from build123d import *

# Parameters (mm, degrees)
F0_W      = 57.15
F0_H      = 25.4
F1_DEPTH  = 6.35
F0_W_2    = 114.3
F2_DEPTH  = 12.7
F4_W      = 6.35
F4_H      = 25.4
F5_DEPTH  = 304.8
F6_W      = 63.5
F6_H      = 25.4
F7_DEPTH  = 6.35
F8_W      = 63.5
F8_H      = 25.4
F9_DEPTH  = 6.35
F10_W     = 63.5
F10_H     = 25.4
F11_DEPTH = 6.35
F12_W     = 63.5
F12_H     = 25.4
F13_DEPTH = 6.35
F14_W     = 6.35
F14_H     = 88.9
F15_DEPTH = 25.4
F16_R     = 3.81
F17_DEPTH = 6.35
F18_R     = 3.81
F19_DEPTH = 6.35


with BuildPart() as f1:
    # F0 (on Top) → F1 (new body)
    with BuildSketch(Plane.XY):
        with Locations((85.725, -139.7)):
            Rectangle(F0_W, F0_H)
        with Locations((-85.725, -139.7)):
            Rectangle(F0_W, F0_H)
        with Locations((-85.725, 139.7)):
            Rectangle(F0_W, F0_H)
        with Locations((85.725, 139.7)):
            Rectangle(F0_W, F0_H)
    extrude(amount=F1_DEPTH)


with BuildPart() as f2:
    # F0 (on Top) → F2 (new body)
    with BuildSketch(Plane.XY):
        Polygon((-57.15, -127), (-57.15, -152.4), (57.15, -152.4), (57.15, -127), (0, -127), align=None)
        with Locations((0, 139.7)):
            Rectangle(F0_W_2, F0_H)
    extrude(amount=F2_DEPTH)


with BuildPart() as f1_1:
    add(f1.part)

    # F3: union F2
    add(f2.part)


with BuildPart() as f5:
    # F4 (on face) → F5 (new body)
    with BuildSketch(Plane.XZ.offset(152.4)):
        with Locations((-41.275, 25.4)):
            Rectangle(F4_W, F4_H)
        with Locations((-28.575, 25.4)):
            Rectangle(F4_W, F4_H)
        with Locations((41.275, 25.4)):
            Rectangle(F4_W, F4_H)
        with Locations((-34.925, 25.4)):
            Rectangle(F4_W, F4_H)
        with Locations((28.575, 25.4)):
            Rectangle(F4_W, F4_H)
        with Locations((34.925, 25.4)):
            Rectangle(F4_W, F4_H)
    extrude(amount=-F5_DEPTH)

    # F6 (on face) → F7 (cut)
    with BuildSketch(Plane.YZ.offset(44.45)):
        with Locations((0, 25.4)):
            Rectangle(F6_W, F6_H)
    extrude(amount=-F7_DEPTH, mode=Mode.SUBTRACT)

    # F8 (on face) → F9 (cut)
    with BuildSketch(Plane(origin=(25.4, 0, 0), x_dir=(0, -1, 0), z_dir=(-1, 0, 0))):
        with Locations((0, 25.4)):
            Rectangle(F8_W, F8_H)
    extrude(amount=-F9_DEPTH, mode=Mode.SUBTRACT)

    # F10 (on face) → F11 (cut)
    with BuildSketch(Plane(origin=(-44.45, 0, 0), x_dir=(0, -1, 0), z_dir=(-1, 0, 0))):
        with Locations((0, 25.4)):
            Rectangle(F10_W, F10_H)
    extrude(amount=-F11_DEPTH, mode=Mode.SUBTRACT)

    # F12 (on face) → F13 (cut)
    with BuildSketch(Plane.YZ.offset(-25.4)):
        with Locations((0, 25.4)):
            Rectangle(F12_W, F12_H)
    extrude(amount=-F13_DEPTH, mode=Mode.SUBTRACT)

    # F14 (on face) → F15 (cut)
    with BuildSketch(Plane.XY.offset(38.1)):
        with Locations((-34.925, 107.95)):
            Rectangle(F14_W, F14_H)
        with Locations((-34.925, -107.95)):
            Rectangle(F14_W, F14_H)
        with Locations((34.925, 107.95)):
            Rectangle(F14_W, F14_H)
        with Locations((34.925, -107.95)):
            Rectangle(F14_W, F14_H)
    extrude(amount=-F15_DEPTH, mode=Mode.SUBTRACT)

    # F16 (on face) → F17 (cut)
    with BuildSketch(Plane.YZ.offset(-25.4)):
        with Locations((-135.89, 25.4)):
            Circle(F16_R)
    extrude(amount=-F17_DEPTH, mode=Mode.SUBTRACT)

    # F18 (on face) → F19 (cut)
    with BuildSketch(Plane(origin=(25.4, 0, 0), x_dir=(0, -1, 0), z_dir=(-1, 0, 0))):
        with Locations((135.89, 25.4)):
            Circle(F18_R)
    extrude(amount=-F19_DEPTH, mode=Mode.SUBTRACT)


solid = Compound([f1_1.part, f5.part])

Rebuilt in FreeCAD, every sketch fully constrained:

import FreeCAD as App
import Part
import Sketcher
from FreeCAD import Vector
Q = App.Units.Quantity


def add_polygon(sketch, points):
    """Adds a closed chain of lines whose ends are joined by coincident constraints."""
    first, n = sketch.GeometryCount, len(points)
    for a, b in zip(points, points[1:] + points[:1]):
        sketch.addGeometry(Part.LineSegment(App.Vector(*a, 0), App.Vector(*b, 0)), False)
    for i in range(n):
        sketch.addConstraint(Sketcher.Constraint("Coincident", first + i, 2, first + (i + 1) % n, 1))

doc = App.newDocument("Part")
params = doc.addObject("Spreadsheet::Sheet", "Params")
for row, (alias, value) in enumerate([
    ("sketch1_height", "1 in"),
    ("sketch1_width", "2.25 in"),
    ("pad1_length", "0.25 in"),
    ("sketch2_height", "1 in"),
    ("sketch2_width", "4.5 in"),
    ("pad2_length", "0.5 in"),
    ("sketch3_height", "1 in"),
    ("sketch3_width", "0.75 in"),
    ("pad3_length", "12 in"),
    ("sketch4_height", "1 in"),
    ("sketch4_width", "2.5 in"),
    ("pocket1_length", "0.25 in"),
    ("sketch5_height", "1 in"),
    ("sketch5_width", "2.5 in"),
    ("pocket2_length", "0.25 in"),
    ("sketch6_height", "1 in"),
    ("sketch6_width", "2.5 in"),
    ("pocket3_length", "0.25 in"),
    ("sketch7_height", "1 in"),
    ("sketch7_width", "2.5 in"),
    ("pocket4_length", "0.25 in"),
    ("sketch8_height", "3.5 in"),
    ("sketch8_width", "0.25 in"),
    ("pocket5_length", "1 in"),
    ("sketch9_diameter", "0.3 in"),
    ("pocket6_length", "0.25 in"),
    ("sketch10_diameter", "0.3 in"),
    ("pocket7_length", "0.25 in"),
], start=1):
    params.set(f"A{row}", alias)
    params.set(f"B{row}", "=" + value)
    params.setAlias(f"B{row}", alias)

body = doc.addObject("PartDesign::Body", "Body")
body.AllowCompound = True

# Sketch on XY plane
sketch1 = doc.addObject("Sketcher::SketchObject", "Sketch")
body.addObject(sketch1)
sketch1.AttachmentSupport = (doc.XY_Plane, [""])
sketch1.MapMode = "FlatFace"
add_polygon(sketch1, [(57, -127), (57, -152), (114, -152), (114, -127)])  # lines 0-3
add_polygon(sketch1, [(-114, -127), (-114, -152), (-57, -152), (-57, -127)])  # lines 4-7
add_polygon(sketch1, [(-114, 152), (-114, 127), (-57, 127), (-57, 152)])  # lines 8-11
add_polygon(sketch1, [(57, 152), (57, 127), (114, 127), (114, 152)])  # lines 12-15
sketch1.addConstraint([
    Sketcher.Constraint("Vertical", 0),
    Sketcher.Constraint("Horizontal", 1),
    Sketcher.Constraint("Vertical", 2),
    Sketcher.Constraint("Horizontal", 3),
    Sketcher.Constraint("Vertical", 4),
    Sketcher.Constraint("Horizontal", 5),
    Sketcher.Constraint("Vertical", 6),
    Sketcher.Constraint("Horizontal", 7),
    Sketcher.Constraint("Vertical", 8),
    Sketcher.Constraint("Horizontal", 9),
    Sketcher.Constraint("Vertical", 10),
    Sketcher.Constraint("Horizontal", 11),
    Sketcher.Constraint("Vertical", 12),
    Sketcher.Constraint("Horizontal", 13),
    Sketcher.Constraint("Vertical", 14),
    Sketcher.Constraint("Horizontal", 15),
    Sketcher.Constraint("Symmetric", 2, 2, 8, 2, -1, 1),
    Sketcher.Constraint("Symmetric", 0, 2, 10, 2, -1, 1),
    Sketcher.Constraint("Symmetric", 6, 2, 12, 2, -1, 1),
    Sketcher.Constraint("Symmetric", 4, 2, 14, 2, -1, 1),
    Sketcher.Constraint("Symmetric", 1, 2, 4, 2, -2),
    Sketcher.Constraint("Symmetric", 3, 2, 6, 2, -2),
    Sketcher.Constraint("DistanceY", 0, 2, 0, 1, Q("1 in")),
    Sketcher.Constraint("DistanceY", 0, 2, -1, 1, Q("6 in")),
    Sketcher.Constraint("DistanceX", 4, 2, 1, 2, Q("9 in")),
    Sketcher.Constraint("DistanceX", 1, 1, 1, 2, Q("2.25 in")),
])
sketch1.setExpression("Constraints[38]", "Params.sketch1_height")
sketch1.setExpression("Constraints[41]", "Params.sketch1_width")
pad1 = doc.addObject("PartDesign::Pad", "Pad")
body.addObject(pad1)
pad1.Profile = sketch1
pad1.setExpression("Length", "Params.pad1_length")
body2 = doc.addObject("PartDesign::Body", "Body001")
body2.AllowCompound = True

# Sketch on XY plane
sketch2 = doc.addObject("Sketcher::SketchObject", "Sketch001")
body2.addObject(sketch2)
sketch2.AttachmentSupport = (doc.getObject("XY_Plane001"), [""])
sketch2.MapMode = "FlatFace"
add_polygon(sketch2, [(-57, -127), (-57, -152), (57, -152), (57, -127)])  # lines 0-3
add_polygon(sketch2, [(-57, 152), (-57, 127), (57, 127), (57, 152)])  # lines 4-7
sketch2.addConstraint([
    Sketcher.Constraint("Vertical", 0),
    Sketcher.Constraint("Horizontal", 1),
    Sketcher.Constraint("Vertical", 2),
    Sketcher.Constraint("Horizontal", 3),
    Sketcher.Constraint("Vertical", 4),
    Sketcher.Constraint("Horizontal", 5),
    Sketcher.Constraint("Vertical", 6),
    Sketcher.Constraint("Horizontal", 7),
    Sketcher.Constraint("Symmetric", 2, 2, 4, 2, -1, 1),
    Sketcher.Constraint("Symmetric", 0, 2, 6, 2, -1, 1),
    Sketcher.Constraint("Vertical", 3, 2, 4, 2),
    Sketcher.Constraint("DistanceY", 0, 2, 0, 1, Q("1 in")),
    Sketcher.Constraint("DistanceX", 1, 1, 1, 2, Q("4.5 in")),
    Sketcher.Constraint("DistanceY", 0, 2, -1, 1, Q("6 in")),
])
sketch2.setExpression("Constraints[19]", "Params.sketch2_height")
sketch2.setExpression("Constraints[20]", "Params.sketch2_width")
pad2 = doc.addObject("PartDesign::Pad", "Pad001")
body2.addObject(pad2)
pad2.Profile = sketch2
pad2.setExpression("Length", "Params.pad2_length")
body.AllowCompound = True
doc.recompute()

boolean = doc.addObject("PartDesign::Boolean", "Boolean")
body.addObject(boolean)
boolean.Type = "Fuse"
boolean.addObjects([body2])
body3 = doc.addObject("PartDesign::Body", "Body002")
body3.AllowCompound = True

# Sketch on XZ plane
sketch3 = doc.addObject("Sketcher::SketchObject", "Sketch002")
body3.addObject(sketch3)
sketch3.AttachmentSupport = (doc.getObject("XZ_Plane002"), [""])
sketch3.MapMode = "FlatFace"
sketch3.AttachmentOffset = App.Placement(Vector(0, 0, 6 * 25.4), App.Rotation())
add_polygon(sketch3, [(-44, 38), (-44, 13), (-25, 13), (-25, 38)])  # lines 0-3
add_polygon(sketch3, [(44, 13), (44, 38), (25, 38), (25, 13)])  # lines 4-7
sketch3.addConstraint([
    Sketcher.Constraint("Vertical", 0),
    Sketcher.Constraint("Horizontal", 1),
    Sketcher.Constraint("Vertical", 2),
    Sketcher.Constraint("Horizontal", 3),
    Sketcher.Constraint("Vertical", 4),
    Sketcher.Constraint("Horizontal", 5),
    Sketcher.Constraint("Vertical", 6),
    Sketcher.Constraint("Horizontal", 7),
    Sketcher.Constraint("Symmetric", 3, 2, 4, 2, -2),
    Sketcher.Constraint("Symmetric", 1, 2, 6, 2, -2),
    Sketcher.Constraint("DistanceY", 0, 2, 0, 1, Q("1 in")),
    Sketcher.Constraint("DistanceX", 1, 2, -1, 1, Q("1 in")),
    Sketcher.Constraint("DistanceX", 1, 1, 1, 2, Q("0.75 in")),
    Sketcher.Constraint("DistanceY", -1, 1, 0, 2, Q("0.5 in")),
])
sketch3.setExpression("Constraints[18]", "Params.sketch3_height")
sketch3.setExpression("Constraints[20]", "Params.sketch3_width")
pad3 = doc.addObject("PartDesign::Pad", "Pad002")
body3.addObject(pad3)
pad3.Profile = sketch3
pad3.setExpression("Length", "Params.pad3_length")
pad3.Reversed = True

# Sketch on YZ plane
sketch4 = doc.addObject("Sketcher::SketchObject", "Sketch003")
body3.addObject(sketch4)
sketch4.AttachmentSupport = (doc.getObject("YZ_Plane002"), [""])
sketch4.MapMode = "FlatFace"
sketch4.AttachmentOffset = App.Placement(Vector(0, 0, 1.75 * 25.4), App.Rotation())
add_polygon(sketch4, [(-32, 38), (-32, 13), (32, 13), (32, 38)])  # lines 0-3
sketch4.addConstraint([
    Sketcher.Constraint("Vertical", 0),
    Sketcher.Constraint("Horizontal", 1),
    Sketcher.Constraint("Vertical", 2),
    Sketcher.Constraint("Horizontal", 3),
    Sketcher.Constraint("DistanceY", 0, 2, 0, 1, Q("1 in")),
    Sketcher.Constraint("DistanceX", 1, 1, 1, 2, Q("2.5 in")),
    Sketcher.Constraint("DistanceY", -1, 1, 0, 2, Q("0.5 in")),
    Sketcher.Constraint("DistanceX", 0, 2, -1, 1, Q("1.25 in")),
])
sketch4.setExpression("Constraints[8]", "Params.sketch4_height")
sketch4.setExpression("Constraints[9]", "Params.sketch4_width")
pocket1 = doc.addObject("PartDesign::Pocket", "Pocket")
body3.addObject(pocket1)
pocket1.Profile = sketch4
pocket1.setExpression("Length", "Params.pocket1_length")

# Sketch on YZ plane
sketch5 = doc.addObject("Sketcher::SketchObject", "Sketch004")
body3.addObject(sketch5)
sketch5.AttachmentSupport = (doc.getObject("YZ_Plane002"), [""])
sketch5.MapMode = "FlatFace"
sketch5.AttachmentOffset = App.Placement(Vector(0, 0, 1 * 25.4), App.Rotation())
add_polygon(sketch5, [(32, 38), (32, 13), (-32, 13), (-32, 38)])  # lines 0-3
sketch5.addConstraint([
    Sketcher.Constraint("Vertical", 0),
    Sketcher.Constraint("Horizontal", 1),
    Sketcher.Constraint("Vertical", 2),
    Sketcher.Constraint("Horizontal", 3),
    Sketcher.Constraint("DistanceY", 0, 2, 0, 1, Q("1 in")),
    Sketcher.Constraint("DistanceX", 1, 2, 1, 1, Q("2.5 in")),
    Sketcher.Constraint("DistanceY", -1, 1, 0, 2, Q("0.5 in")),
    Sketcher.Constraint("DistanceX", -1, 1, 0, 2, Q("1.25 in")),
])
sketch5.setExpression("Constraints[8]", "Params.sketch5_height")
sketch5.setExpression("Constraints[9]", "Params.sketch5_width")
pocket2 = doc.addObject("PartDesign::Pocket", "Pocket001")
body3.addObject(pocket2)
pocket2.Profile = sketch5
pocket2.setExpression("Length", "Params.pocket2_length")
pocket2.Reversed = True

# Sketch on YZ plane
sketch6 = doc.addObject("Sketcher::SketchObject", "Sketch005")
body3.addObject(sketch6)
sketch6.AttachmentSupport = (doc.getObject("YZ_Plane002"), [""])
sketch6.MapMode = "FlatFace"
sketch6.AttachmentOffset = App.Placement(Vector(0, 0, -1.75 * 25.4), App.Rotation())
add_polygon(sketch6, [(32, 38), (32, 13), (-32, 13), (-32, 38)])  # lines 0-3
sketch6.addConstraint([
    Sketcher.Constraint("Vertical", 0),
    Sketcher.Constraint("Horizontal", 1),
    Sketcher.Constraint("Vertical", 2),
    Sketcher.Constraint("Horizontal", 3),
    Sketcher.Constraint("DistanceY", 0, 2, 0, 1, Q("1 in")),
    Sketcher.Constraint("DistanceX", 1, 2, 1, 1, Q("2.5 in")),
    Sketcher.Constraint("DistanceY", -1, 1, 0, 2, Q("0.5 in")),
    Sketcher.Constraint("DistanceX", -1, 1, 0, 2, Q("1.25 in")),
])
sketch6.setExpression("Constraints[8]", "Params.sketch6_height")
sketch6.setExpression("Constraints[9]", "Params.sketch6_width")
pocket3 = doc.addObject("PartDesign::Pocket", "Pocket002")
body3.addObject(pocket3)
pocket3.Profile = sketch6
pocket3.setExpression("Length", "Params.pocket3_length")
pocket3.Reversed = True

# Sketch on YZ plane
sketch7 = doc.addObject("Sketcher::SketchObject", "Sketch006")
body3.addObject(sketch7)
sketch7.AttachmentSupport = (doc.getObject("YZ_Plane002"), [""])
sketch7.MapMode = "FlatFace"
sketch7.AttachmentOffset = App.Placement(Vector(0, 0, -1 * 25.4), App.Rotation())
add_polygon(sketch7, [(-32, 38), (-32, 13), (32, 13), (32, 38)])  # lines 0-3
sketch7.addConstraint([
    Sketcher.Constraint("Vertical", 0),
    Sketcher.Constraint("Horizontal", 1),
    Sketcher.Constraint("Vertical", 2),
    Sketcher.Constraint("Horizontal", 3),
    Sketcher.Constraint("DistanceY", 0, 2, 0, 1, Q("1 in")),
    Sketcher.Constraint("DistanceX", 1, 1, 1, 2, Q("2.5 in")),
    Sketcher.Constraint("DistanceY", -1, 1, 0, 2, Q("0.5 in")),
    Sketcher.Constraint("DistanceX", 0, 2, -1, 1, Q("1.25 in")),
])
sketch7.setExpression("Constraints[8]", "Params.sketch7_height")
sketch7.setExpression("Constraints[9]", "Params.sketch7_width")
pocket4 = doc.addObject("PartDesign::Pocket", "Pocket003")
body3.addObject(pocket4)
pocket4.Profile = sketch7
pocket4.setExpression("Length", "Params.pocket4_length")

# Sketch on XY plane
sketch8 = doc.addObject("Sketcher::SketchObject", "Sketch007")
body3.addObject(sketch8)
sketch8.AttachmentSupport = (doc.getObject("XY_Plane002"), [""])
sketch8.MapMode = "FlatFace"
sketch8.AttachmentOffset = App.Placement(Vector(0, 0, 1.5 * 25.4), App.Rotation())
add_polygon(sketch8, [(-38, 152), (-38, 64), (-32, 64), (-32, 152)])  # lines 0-3
add_polygon(sketch8, [(-38, -64), (-38, -152), (-32, -152), (-32, -64)])  # lines 4-7
add_polygon(sketch8, [(32, 152), (32, 64), (38, 64), (38, 152)])  # lines 8-11
add_polygon(sketch8, [(32, -64), (32, -152), (38, -152), (38, -64)])  # lines 12-15
sketch8.addConstraint([
    Sketcher.Constraint("Vertical", 0),
    Sketcher.Constraint("Horizontal", 1),
    Sketcher.Constraint("Vertical", 2),
    Sketcher.Constraint("Horizontal", 3),
    Sketcher.Constraint("Vertical", 4),
    Sketcher.Constraint("Horizontal", 5),
    Sketcher.Constraint("Vertical", 6),
    Sketcher.Constraint("Horizontal", 7),
    Sketcher.Constraint("Vertical", 8),
    Sketcher.Constraint("Horizontal", 9),
    Sketcher.Constraint("Vertical", 10),
    Sketcher.Constraint("Horizontal", 11),
    Sketcher.Constraint("Vertical", 12),
    Sketcher.Constraint("Horizontal", 13),
    Sketcher.Constraint("Vertical", 14),
    Sketcher.Constraint("Horizontal", 15),
    Sketcher.Constraint("Symmetric", 6, 2, 8, 2, -1, 1),
    Sketcher.Constraint("Symmetric", 4, 2, 10, 2, -1, 1),
    Sketcher.Constraint("Symmetric", 2, 2, 12, 2, -1, 1),
    Sketcher.Constraint("Symmetric", 0, 2, 14, 2, -1, 1),
    Sketcher.Constraint("Symmetric", 1, 2, 8, 2, -2),
    Sketcher.Constraint("Symmetric", 3, 2, 10, 2, -2),
    Sketcher.Constraint("DistanceY", 0, 2, 0, 1, Q("3.5 in")),
    Sketcher.Constraint("DistanceY", -1, 1, 2, 2, Q("6 in")),
    Sketcher.Constraint("DistanceX", 0, 2, 9, 2, Q("3 in")),
    Sketcher.Constraint("DistanceX", 1, 1, 1, 2, Q("0.25 in")),
])
sketch8.setExpression("Constraints[38]", "Params.sketch8_height")
sketch8.setExpression("Constraints[41]", "Params.sketch8_width")
pocket5 = doc.addObject("PartDesign::Pocket", "Pocket004")
body3.addObject(pocket5)
pocket5.Profile = sketch8
pocket5.setExpression("Length", "Params.pocket5_length")

# Sketch on YZ plane
sketch9 = doc.addObject("Sketcher::SketchObject", "Sketch008")
body3.addObject(sketch9)
sketch9.AttachmentSupport = (doc.getObject("YZ_Plane002"), [""])
sketch9.MapMode = "FlatFace"
sketch9.AttachmentOffset = App.Placement(Vector(0, 0, -1 * 25.4), App.Rotation())
sketch9.addGeometry(Part.Circle(Vector(-135.9, 25.4, 0), Vector(0, 0, 1), 3.8), False)
sketch9.addConstraint([
    Sketcher.Constraint("Diameter", 0, Q("0.3 in")),
    Sketcher.Constraint("DistanceY", -1, 1, 0, 3, Q("1 in")),
    Sketcher.Constraint("DistanceX", 0, 3, -1, 1, Q("5.35 in")),
])
sketch9.setExpression("Constraints[0]", "Params.sketch9_diameter")
pocket6 = doc.addObject("PartDesign::Pocket", "Pocket005")
body3.addObject(pocket6)
pocket6.Profile = sketch9
pocket6.setExpression("Length", "Params.pocket6_length")

# Sketch on YZ plane
sketch10 = doc.addObject("Sketcher::SketchObject", "Sketch009")
body3.addObject(sketch10)
sketch10.AttachmentSupport = (doc.getObject("YZ_Plane002"), [""])
sketch10.MapMode = "FlatFace"
sketch10.AttachmentOffset = App.Placement(Vector(0, 0, 1 * 25.4), App.Rotation())
sketch10.addGeometry(Part.Circle(Vector(-135.9, 25.4, 0), Vector(0, 0, 1), 3.8), False)
sketch10.addConstraint([
    Sketcher.Constraint("Diameter", 0, Q("0.3 in")),
    Sketcher.Constraint("DistanceY", -1, 1, 0, 3, Q("1 in")),
    Sketcher.Constraint("DistanceX", 0, 3, -1, 1, Q("5.35 in")),
])
sketch10.setExpression("Constraints[0]", "Params.sketch10_diameter")
pocket7 = doc.addObject("PartDesign::Pocket", "Pocket006")
body3.addObject(pocket7)
pocket7.Profile = sketch10
pocket7.setExpression("Length", "Params.pocket7_length")
pocket7.Reversed = True

doc.recompute()
